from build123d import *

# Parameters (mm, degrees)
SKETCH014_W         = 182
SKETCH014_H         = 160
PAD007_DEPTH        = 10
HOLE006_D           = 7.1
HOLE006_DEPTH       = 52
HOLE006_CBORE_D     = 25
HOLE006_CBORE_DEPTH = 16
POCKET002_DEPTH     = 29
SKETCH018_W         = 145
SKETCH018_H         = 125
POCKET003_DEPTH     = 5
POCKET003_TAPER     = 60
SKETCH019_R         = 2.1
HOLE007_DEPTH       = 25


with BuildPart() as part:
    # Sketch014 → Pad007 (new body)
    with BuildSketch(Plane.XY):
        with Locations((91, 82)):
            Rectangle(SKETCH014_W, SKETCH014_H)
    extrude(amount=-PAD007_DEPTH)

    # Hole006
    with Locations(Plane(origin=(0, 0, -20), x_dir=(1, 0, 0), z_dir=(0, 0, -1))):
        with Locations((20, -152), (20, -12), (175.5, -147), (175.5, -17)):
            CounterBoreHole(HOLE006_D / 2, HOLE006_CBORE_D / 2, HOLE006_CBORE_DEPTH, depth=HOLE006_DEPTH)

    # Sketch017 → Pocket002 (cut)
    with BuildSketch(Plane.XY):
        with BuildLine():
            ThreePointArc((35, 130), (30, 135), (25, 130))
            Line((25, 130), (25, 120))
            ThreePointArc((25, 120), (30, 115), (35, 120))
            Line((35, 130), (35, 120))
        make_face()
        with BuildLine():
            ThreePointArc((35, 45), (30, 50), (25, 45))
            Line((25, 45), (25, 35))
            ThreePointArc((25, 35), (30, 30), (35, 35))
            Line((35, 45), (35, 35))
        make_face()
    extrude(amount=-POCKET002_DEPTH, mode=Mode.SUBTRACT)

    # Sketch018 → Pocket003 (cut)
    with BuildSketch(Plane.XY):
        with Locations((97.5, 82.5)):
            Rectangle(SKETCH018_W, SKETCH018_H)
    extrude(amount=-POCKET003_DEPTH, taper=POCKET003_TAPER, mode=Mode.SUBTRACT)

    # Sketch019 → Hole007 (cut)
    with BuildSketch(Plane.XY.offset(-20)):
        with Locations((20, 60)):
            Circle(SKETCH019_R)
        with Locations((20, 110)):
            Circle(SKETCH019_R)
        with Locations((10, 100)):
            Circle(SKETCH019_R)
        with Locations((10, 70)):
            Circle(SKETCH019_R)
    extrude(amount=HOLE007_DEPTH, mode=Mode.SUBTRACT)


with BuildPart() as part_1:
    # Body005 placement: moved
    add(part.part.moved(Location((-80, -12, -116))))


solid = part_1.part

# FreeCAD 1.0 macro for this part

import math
import FreeCAD as App
import Part
import Sketcher
from FreeCAD import Vector
Q = App.Units.Quantity

doc = App.newDocument("Part")
body = doc.addObject("PartDesign::Body", "Body")

sketch1 = doc.addObject("Sketcher::SketchObject", "Sketch")
body.addObject(sketch1)
sketch1.AttachmentSupport = (doc.XY_Plane, [""])
sketch1.MapMode = "FlatFace"
sketch1.addGeometry([
    Part.LineSegment(Vector(0, 162, 0), Vector(0, 2, 0)),
    Part.LineSegment(Vector(0, 2, 0), Vector(182, 2, 0)),
    Part.LineSegment(Vector(182, 2, 0), Vector(182, 162, 0)),
    Part.LineSegment(Vector(182, 162, 0), Vector(0, 162, 0)),
], False)
sketch1.addConstraint([
    Sketcher.Constraint("Coincident", 0, 2, 1, 1),
    Sketcher.Constraint("Coincident", 1, 2, 2, 1),
    Sketcher.Constraint("Coincident", 2, 2, 3, 1),
    Sketcher.Constraint("Coincident", 3, 2, 0, 1),
    Sketcher.Constraint("Vertical", 0),
    Sketcher.Constraint("Horizontal", 1),
    Sketcher.Constraint("Vertical", 2),
    Sketcher.Constraint("Horizontal", 3),
    Sketcher.Constraint("PointOnObject", 0, 2, -2),
    Sketcher.Constraint("DistanceX", 1, 1, 1, 2, Q("182 mm")),
    Sketcher.Constraint("DistanceY", 0, 2, 0, 1, Q("160 mm")),
    Sketcher.Constraint("DistanceY", -1, 1, 0, 2, Q("2 mm")),
])
pad1 = doc.addObject("PartDesign::Pad", "Pad")
body.addObject(pad1)
pad1.Profile = sketch1
pad1.Length = 10
pad1.Reversed = True

sketch2 = doc.addObject("Sketcher::SketchObject", "Sketch001")
body.addObject(sketch2)
sketch2.AttachmentSupport = (doc.XY_Plane, [""])
sketch2.MapMode = "FlatFace"
sketch2.AttachmentOffset = App.Placement(Vector(0, 0, -20), App.Rotation())
sketch2.addGeometry([
    Part.Circle(Vector(20, 152, 0), Vector(0, 0, 1), 3.5),
    Part.Circle(Vector(20, 12, 0), Vector(0, 0, 1), 3.5),
    Part.Circle(Vector(175.5, 147, 0), Vector(0, 0, 1), 3.5),
    Part.Circle(Vector(175.5, 17, 0), Vector(0, 0, 1), 3.5),
], False)
sketch2.addConstraint([
    Sketcher.Constraint("Equal", 0, 1),
    Sketcher.Constraint("Equal", 1, 2),
    Sketcher.Constraint("Equal", 2, 3),
    Sketcher.Constraint("Vertical", 0, 3, 1, 3),
    Sketcher.Constraint("Vertical", 2, 3, 3, 3),
    Sketcher.Constraint("Diameter", 0, Q("7.1 mm")),
    Sketcher.Constraint("DistanceX", -1, 1, 0, 3, Q("20 mm")),
    Sketcher.Constraint("DistanceY", -1, 1, 0, 3, Q("152 mm")),
    Sketcher.Constraint("DistanceY", -1, 1, 1, 3, Q("12 mm")),
    Sketcher.Constraint("DistanceY", -1, 1, 2, 3, Q("147 mm")),
    Sketcher.Constraint("DistanceY", -1, 1, 3, 3, Q("17 mm")),
    Sketcher.Constraint("DistanceX", -1, 1, 2, 3, Q("175.5 mm")),
])
doc.recompute()
hole = doc.addObject("PartDesign::Hole", "Hole")
body.addObject(hole)
hole.Profile = sketch2
hole.ThreadType = "None"
hole.Diameter = 7.1
hole.DepthType = "Dimension"
hole.Depth = 52
hole.DrillPoint = "Flat"
hole.HoleCutType = "Counterbore"
hole.HoleCutDiameter = 25
hole.HoleCutDepth = 16
hole.Reversed = True

sketch3 = doc.addObject("Sketcher::SketchObject", "Sketch002")
body.addObject(sketch3)
sketch3.AttachmentSupport = (doc.XY_Plane, [""])
sketch3.MapMode = "FlatFace"
sketch3.addGeometry([
    Part.ArcOfCircle(Part.Circle(Vector(30, 130, 0), Vector(0, 0, 1), 5), math.radians(0), math.radians(180)),
    Part.LineSegment(Vector(25, 130, 0), Vector(25, 120, 0)),
    Part.ArcOfCircle(Part.Circle(Vector(30, 120, 0), Vector(0, 0, 1), 5), math.radians(180), math.radians(360)),
    Part.LineSegment(Vector(35, 120, 0), Vector(35, 130, 0)),
    Part.ArcOfCircle(Part.Circle(Vector(30, 45, 0), Vector(0, 0, 1), 5), math.radians(0), math.radians(180)),
    Part.LineSegment(Vector(25, 45, 0), Vector(25, 35, 0)),
    Part.ArcOfCircle(Part.Circle(Vector(30, 35, 0), Vector(0, 0, 1), 5), math.radians(180), math.radians(360)),
    Part.LineSegment(Vector(35, 35, 0), Vector(35, 45, 0)),
], False)
sketch3.addConstraint([
    Sketcher.Constraint("Tangent", 0, 2, 1, 1),
    Sketcher.Constraint("Tangent", 1, 2, 2, 1),
    Sketcher.Constraint("Tangent", 2, 2, 3, 1),
    Sketcher.Constraint("Tangent", 3, 2, 0, 1),
    Sketcher.Constraint("Tangent", 4, 2, 5, 1),
    Sketcher.Constraint("Tangent", 5, 2, 6, 1),
    Sketcher.Constraint("Tangent", 6, 2, 7, 1),
    Sketcher.Constraint("Tangent", 7, 2, 4, 1),
    Sketcher.Constraint("Vertical", 1),
    Sketcher.Constraint("Vertical", 3),
    Sketcher.Constraint("Vertical", 5),
    Sketcher.Constraint("Vertical", 7),
    Sketcher.Constraint("Equal", 2, 4),
    Sketcher.Constraint("Vertical", 2, 3, 4, 3),
    Sketcher.Constraint("Equal", 3, 5),
    Sketcher.Constraint("Radius", 0, Q("5 mm")),
    Sketcher.Constraint("DistanceY", 1, 2, 1, 1, Q("10 mm")),
    Sketcher.Constraint("DistanceX", -1, 1, 0, 3, Q("30 mm")),
    Sketcher.Constraint("DistanceY", -1, 1, 0, 3, Q("130 mm")),
    Sketcher.Constraint("DistanceY", -1, 1, 4, 3, Q("45 mm")),
])
pocket1 = doc.addObject("PartDesign::Pocket", "Pocket")
body.addObject(pocket1)
pocket1.Profile = sketch3
pocket1.Length = 29

sketch4 = doc.addObject("Sketcher::SketchObject", "Sketch003")
body.addObject(sketch4)
sketch4.AttachmentSupport = (doc.XY_Plane, [""])
sketch4.MapMode = "FlatFace"
sketch4.addGeometry([
    Part.LineSegment(Vector(25, 145, 0), Vector(25, 20, 0)),
    Part.LineSegment(Vector(25, 20, 0), Vector(170, 20, 0)),
    Part.LineSegment(Vector(170, 20, 0), Vector(170, 145, 0)),
    Part.LineSegment(Vector(170, 145, 0), Vector(25, 145, 0)),
], False)
sketch4.addConstraint([
    Sketcher.Constraint("Coincident", 0, 2, 1, 1),
    Sketcher.Constraint("Coincident", 1, 2, 2, 1),
    Sketcher.Constraint("Coincident", 2, 2, 3, 1),
    Sketcher.Constraint("Coincident", 3, 2, 0, 1),
    Sketcher.Constraint("Vertical", 0),
    Sketcher.Constraint("Horizontal", 1),
    Sketcher.Constraint("Vertical", 2),
    Sketcher.Constraint("Horizontal", 3),
    Sketcher.Constraint("DistanceX", 1, 1, 1, 2, Q("145 mm")),
    Sketcher.Constraint("DistanceY", 0, 2, 0, 1, Q("125 mm")),
    Sketcher.Constraint("DistanceX", -1, 1, 0, 2, Q("25 mm")),
    Sketcher.Constraint("DistanceY", -1, 1, 0, 2, Q("20 mm")),
])
pocket2 = doc.addObject("PartDesign::Pocket", "Pocket001")
body.addObject(pocket2)
pocket2.Profile = sketch4
pocket2.Length = 5
pocket2.TaperAngle = -60

sketch5 = doc.addObject("Sketcher::SketchObject", "Sketch004")
body.addObject(sketch5)
sketch5.AttachmentSupport = (doc.XY_Plane, [""])
sketch5.MapMode = "FlatFace"
sketch5.AttachmentOffset = App.Placement(Vector(0, 0, -20), App.Rotation())
sketch5.addGeometry([
    Part.Circle(Vector(20, 60, 0), Vector(0, 0, 1), 2.1),
    Part.Circle(Vector(20, 110, 0), Vector(0, 0, 1), 2.1),
    Part.Circle(Vector(10, 100, 0), Vector(0, 0, 1), 2.1),
    Part.Circle(Vector(10, 70, 0), Vector(0, 0, 1), 2.1),
], False)
sketch5.addConstraint([
    Sketcher.Constraint("Equal", 0, 1),
    Sketcher.Constraint("Equal", 1, 2),
    Sketcher.Constraint("Equal", 2, 3),
    Sketcher.Constraint("Vertical", 0, 3, 1, 3),
    Sketcher.Constraint("Vertical", 2, 3, 3, 3),
    Sketcher.Constraint("Diameter", 0, Q("4.2 mm")),
    Sketcher.Constraint("DistanceX", -1, 1, 0, 3, Q("20 mm")),
    Sketcher.Constraint("DistanceY", -1, 1, 0, 3, Q("60 mm")),
    Sketcher.Constraint("DistanceY", -1, 1, 1, 3, Q("110 mm")),
    Sketcher.Constraint("DistanceX", -1, 1, 2, 3, Q("10 mm")),
    Sketcher.Constraint("DistanceY", -1, 1, 2, 3, Q("100 mm")),
    Sketcher.Constraint("DistanceY", -1, 1, 3, 3, Q("70 mm")),
])
pocket3 = doc.addObject("PartDesign::Pocket", "Pocket002")
body.addObject(pocket3)
pocket3.Profile = sketch5
pocket3.Length = 25
pocket3.Reversed = True
body2 = doc.addObject("PartDesign::Body", "Body001")
doc.recompute()

body.Placement = App.Placement(Vector(-80, -12, -116), App.Rotation(Vector(0, 0, 1), 0))
boolean = doc.addObject("PartDesign::Boolean", "Boolean")
body2.addObject(boolean)
boolean.Type = "Fuse"
boolean.addObjects([body])

doc.recompute()
